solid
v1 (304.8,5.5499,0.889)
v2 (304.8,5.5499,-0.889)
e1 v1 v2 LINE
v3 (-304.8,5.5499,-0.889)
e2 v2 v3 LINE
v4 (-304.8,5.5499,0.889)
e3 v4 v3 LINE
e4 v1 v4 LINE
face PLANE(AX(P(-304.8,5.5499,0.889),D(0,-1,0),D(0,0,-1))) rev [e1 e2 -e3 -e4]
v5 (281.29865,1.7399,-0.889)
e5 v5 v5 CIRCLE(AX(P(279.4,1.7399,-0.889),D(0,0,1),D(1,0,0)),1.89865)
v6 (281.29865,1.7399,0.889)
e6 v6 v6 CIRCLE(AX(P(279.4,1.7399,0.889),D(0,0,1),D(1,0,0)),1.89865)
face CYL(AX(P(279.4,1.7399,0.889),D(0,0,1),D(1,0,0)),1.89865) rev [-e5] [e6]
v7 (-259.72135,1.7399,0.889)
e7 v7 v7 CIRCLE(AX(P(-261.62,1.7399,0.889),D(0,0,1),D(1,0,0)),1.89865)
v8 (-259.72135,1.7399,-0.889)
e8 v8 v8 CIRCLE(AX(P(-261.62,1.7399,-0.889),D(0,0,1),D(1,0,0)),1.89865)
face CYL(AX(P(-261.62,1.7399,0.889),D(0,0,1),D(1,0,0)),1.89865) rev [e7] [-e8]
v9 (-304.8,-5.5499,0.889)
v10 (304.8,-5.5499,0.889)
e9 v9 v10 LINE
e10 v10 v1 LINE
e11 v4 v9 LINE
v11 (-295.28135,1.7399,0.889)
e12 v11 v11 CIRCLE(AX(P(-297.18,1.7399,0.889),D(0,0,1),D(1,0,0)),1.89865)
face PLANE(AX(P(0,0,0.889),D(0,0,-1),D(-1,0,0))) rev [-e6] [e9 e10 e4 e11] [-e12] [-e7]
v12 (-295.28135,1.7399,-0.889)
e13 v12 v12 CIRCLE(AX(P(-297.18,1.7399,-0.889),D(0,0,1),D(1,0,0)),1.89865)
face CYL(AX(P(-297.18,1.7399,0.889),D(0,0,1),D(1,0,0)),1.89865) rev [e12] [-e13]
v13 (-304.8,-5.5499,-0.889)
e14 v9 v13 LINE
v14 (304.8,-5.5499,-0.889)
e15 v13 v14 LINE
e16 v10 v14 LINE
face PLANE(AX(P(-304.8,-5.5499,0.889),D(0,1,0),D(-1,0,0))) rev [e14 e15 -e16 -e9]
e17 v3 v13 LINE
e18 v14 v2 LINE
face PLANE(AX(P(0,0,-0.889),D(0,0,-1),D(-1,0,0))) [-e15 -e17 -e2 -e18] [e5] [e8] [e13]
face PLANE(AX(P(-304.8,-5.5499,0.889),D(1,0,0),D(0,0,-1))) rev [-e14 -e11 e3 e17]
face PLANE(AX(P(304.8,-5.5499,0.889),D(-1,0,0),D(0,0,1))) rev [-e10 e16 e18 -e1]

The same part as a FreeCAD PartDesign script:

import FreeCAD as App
import Part
import Sketcher
Q = App.Units.Quantity

doc = App.newDocument("Part")
body = doc.addObject("PartDesign::Body", "Body")

sketch1 = body.newObject("Sketcher::SketchObject", "Sketch")
sketch1.AttachmentSupport = (doc.getObject("XY_Plane"), [""])
sketch1.MapMode = "FlatFace"
sketch1.addGeometry([
    Part.LineSegment(App.Vector(-305, 6, 0), App.Vector(-305, -6, 0)),
    Part.LineSegment(App.Vector(-305, -6, 0), App.Vector(305, -6, 0)),
    Part.LineSegment(App.Vector(305, -6, 0), App.Vector(305, 6, 0)),
    Part.LineSegment(App.Vector(305, 6, 0), App.Vector(-305, 6, 0)),
], False)
sketch1.addConstraint([
    Sketcher.Constraint("Coincident", 0, 2, 1, 1),
    Sketcher.Constraint("Coincident", 1, 2, 2, 1),
    Sketcher.Constraint("Coincident", 2, 2, 3, 1),
    Sketcher.Constraint("Coincident", 3, 2, 0, 1),
    Sketcher.Constraint("Vertical", 0),
    Sketcher.Constraint("Horizontal", 1),
    Sketcher.Constraint("Vertical", 2),
    Sketcher.Constraint("Horizontal", 3),
    Sketcher.Constraint("Symmetric", 0, 2, 2, 2, -1, 1),
    Sketcher.Constraint("DistanceX", 1, 1, 1, 2, Q("24 in")),
    Sketcher.Constraint("DistanceY", 0, 2, 0, 1, Q("0.437 in")),
])
pad1 = body.newObject("PartDesign::Pad", "Pad")
pad1.Profile = sketch1
pad1.Length = Q("0.07 in")
pad1.Midplane = True

sketch2 = body.newObject("Sketcher::SketchObject", "Sketch001")
sketch2.AttachmentSupport = (doc.getObject("XY_Plane"), [""])
sketch2.MapMode = "FlatFace"
sketch2.AttachmentOffset = App.Placement(App.Vector(0, 0, 0.035 * 25.4), App.Rotation())
sketch2.addGeometry([
    Part.Circle(App.Vector(-297.2, 1.7, 0), App.Vector(0, 0, 1), 1.9),
    Part.Circle(App.Vector(-261.6, 1.7, 0), App.Vector(0, 0, 1), 1.9),
    Part.Circle(App.Vector(279.4, 1.7, 0), App.Vector(0, 0, 1), 1.9),
], False)
sketch2.addConstraint([
    Sketcher.Constraint("Equal", 0, 1),
    Sketcher.Constraint("Equal", 1, 2),
    Sketcher.Constraint("Horizontal", 0, 3, 1, 3),
    Sketcher.Constraint("Horizontal", 1, 3, 2, 3),
    Sketcher.Constraint("DistanceX", -1, 1, 2, 3, Q("11 in")),
    Sketcher.Constraint("Diameter", 0, Q("0.1495 in")),
    Sketcher.Constraint("DistanceX", 0, 3, -1, 1, Q("11.7 in")),
    Sketcher.Constraint("DistanceX", 1, 3, -1, 1, Q("10.3 in")),
    Sketcher.Constraint("DistanceY", -1, 1, 0, 3, Q("0.0685 in")),
])
doc.recompute()
hole = body.newObject("PartDesign::Hole", "Hole")
hole.Profile = sketch2
hole.ThreadType = "None"
hole.Diameter = Q("0.1495 in")
hole.DepthType = "ThroughAll"

doc.recompute()
